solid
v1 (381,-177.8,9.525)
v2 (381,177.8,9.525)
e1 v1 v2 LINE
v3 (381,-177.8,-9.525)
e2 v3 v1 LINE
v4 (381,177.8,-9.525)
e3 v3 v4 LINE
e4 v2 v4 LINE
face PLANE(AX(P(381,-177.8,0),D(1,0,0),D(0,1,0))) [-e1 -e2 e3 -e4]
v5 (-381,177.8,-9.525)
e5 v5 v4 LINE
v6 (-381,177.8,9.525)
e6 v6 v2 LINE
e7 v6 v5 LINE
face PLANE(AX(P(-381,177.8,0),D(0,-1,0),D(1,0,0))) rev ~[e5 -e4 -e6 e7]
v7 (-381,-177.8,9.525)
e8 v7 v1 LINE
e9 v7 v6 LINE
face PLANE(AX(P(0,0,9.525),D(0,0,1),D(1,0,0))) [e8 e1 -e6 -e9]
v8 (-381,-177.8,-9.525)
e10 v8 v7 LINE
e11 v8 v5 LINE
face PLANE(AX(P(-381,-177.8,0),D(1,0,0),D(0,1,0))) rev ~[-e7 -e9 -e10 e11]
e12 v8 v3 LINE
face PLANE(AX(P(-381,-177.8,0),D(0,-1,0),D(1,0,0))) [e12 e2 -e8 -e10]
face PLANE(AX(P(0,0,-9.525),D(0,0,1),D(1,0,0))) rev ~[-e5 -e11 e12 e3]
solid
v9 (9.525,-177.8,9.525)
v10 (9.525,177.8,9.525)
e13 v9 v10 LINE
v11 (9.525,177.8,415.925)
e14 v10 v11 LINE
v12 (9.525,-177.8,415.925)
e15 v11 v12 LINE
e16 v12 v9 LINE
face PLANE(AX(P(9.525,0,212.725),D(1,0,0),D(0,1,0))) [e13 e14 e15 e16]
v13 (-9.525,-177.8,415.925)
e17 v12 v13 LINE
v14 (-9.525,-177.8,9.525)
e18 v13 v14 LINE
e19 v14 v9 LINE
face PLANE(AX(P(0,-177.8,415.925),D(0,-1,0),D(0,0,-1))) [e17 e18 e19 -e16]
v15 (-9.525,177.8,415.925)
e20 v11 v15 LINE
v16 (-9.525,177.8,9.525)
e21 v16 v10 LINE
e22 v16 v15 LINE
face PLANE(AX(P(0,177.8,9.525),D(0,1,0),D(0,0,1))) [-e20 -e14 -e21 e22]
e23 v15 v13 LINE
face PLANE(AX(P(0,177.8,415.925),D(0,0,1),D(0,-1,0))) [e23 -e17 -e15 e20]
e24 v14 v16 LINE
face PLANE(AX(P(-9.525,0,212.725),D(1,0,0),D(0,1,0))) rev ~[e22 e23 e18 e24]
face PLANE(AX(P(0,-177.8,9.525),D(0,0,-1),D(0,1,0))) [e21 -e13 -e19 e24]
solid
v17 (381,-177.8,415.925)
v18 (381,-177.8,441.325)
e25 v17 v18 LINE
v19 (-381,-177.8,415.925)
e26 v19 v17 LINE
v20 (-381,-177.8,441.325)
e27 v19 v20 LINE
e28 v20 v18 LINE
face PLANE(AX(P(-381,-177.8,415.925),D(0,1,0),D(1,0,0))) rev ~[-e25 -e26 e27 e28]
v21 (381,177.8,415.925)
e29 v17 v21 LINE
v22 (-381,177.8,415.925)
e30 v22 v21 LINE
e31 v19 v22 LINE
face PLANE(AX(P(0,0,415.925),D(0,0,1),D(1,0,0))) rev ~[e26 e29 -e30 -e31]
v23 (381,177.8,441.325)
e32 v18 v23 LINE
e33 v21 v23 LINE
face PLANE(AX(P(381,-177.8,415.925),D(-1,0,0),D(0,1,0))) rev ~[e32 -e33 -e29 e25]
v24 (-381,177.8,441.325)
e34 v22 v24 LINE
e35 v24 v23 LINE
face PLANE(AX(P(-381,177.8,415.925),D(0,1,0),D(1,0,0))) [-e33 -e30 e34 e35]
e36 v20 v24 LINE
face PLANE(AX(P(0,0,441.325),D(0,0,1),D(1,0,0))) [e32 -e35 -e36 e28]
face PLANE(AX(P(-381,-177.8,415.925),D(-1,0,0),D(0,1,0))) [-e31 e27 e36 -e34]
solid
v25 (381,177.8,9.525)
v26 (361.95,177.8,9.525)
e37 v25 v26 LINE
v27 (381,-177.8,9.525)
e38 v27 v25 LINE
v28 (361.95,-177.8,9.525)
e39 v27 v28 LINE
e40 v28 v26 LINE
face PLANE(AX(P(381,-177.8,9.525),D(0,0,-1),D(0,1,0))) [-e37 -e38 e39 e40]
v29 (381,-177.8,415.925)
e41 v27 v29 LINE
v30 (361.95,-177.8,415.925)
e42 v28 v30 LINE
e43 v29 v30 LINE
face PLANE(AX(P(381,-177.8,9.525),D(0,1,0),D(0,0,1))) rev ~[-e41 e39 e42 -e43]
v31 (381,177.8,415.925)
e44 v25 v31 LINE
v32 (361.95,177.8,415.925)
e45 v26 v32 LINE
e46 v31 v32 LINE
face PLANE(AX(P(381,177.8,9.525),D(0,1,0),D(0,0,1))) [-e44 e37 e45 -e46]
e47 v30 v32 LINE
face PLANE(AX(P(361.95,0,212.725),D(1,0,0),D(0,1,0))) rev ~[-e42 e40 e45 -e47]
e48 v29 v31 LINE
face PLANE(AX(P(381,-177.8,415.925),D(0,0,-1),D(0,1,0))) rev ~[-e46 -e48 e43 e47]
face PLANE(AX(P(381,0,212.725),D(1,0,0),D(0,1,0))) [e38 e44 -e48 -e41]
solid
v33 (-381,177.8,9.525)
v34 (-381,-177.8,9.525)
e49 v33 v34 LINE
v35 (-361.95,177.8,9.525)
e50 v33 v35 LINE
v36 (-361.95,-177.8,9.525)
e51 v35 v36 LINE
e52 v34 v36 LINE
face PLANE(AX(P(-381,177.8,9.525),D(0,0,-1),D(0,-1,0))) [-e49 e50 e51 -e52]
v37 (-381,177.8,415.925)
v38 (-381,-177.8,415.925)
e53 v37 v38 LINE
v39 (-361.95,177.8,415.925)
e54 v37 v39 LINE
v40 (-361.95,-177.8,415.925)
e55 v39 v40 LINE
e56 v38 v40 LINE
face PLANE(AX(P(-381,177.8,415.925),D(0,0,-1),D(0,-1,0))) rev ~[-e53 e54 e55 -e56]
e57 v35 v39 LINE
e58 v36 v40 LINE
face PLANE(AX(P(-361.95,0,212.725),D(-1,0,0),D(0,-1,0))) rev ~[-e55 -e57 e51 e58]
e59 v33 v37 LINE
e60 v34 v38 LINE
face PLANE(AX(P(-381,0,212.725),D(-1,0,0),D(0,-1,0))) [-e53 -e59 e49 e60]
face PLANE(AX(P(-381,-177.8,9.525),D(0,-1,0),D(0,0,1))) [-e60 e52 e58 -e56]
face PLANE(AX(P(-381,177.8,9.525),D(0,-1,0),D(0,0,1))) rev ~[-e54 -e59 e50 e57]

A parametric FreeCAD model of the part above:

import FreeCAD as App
import Part
import Sketcher
from FreeCAD import Vector
Q = App.Units.Quantity


def add_polygon(sketch, points):
    """Adds a closed chain of lines whose ends are joined by coincident constraints."""
    first, n = sketch.GeometryCount, len(points)
    for a, b in zip(points, points[1:] + points[:1]):
        sketch.addGeometry(Part.LineSegment(App.Vector(*a, 0), App.Vector(*b, 0)), False)
    for i in range(n):
        sketch.addConstraint(Sketcher.Constraint("Coincident", first + i, 2, first + (i + 1) % n, 1))

doc = App.newDocument("Part")
params = doc.addObject("Spreadsheet::Sheet", "Params")
for row, (alias, value) in enumerate([
    ("sketch1_width", "30 in"),
    ("sketch1_height", "14 in"),
    ("pad1_length", "0.75 in"),
    ("sketch2_width", "14 in"),
    ("sketch2_height", "16 in"),
    ("pad2_length", "0.75 in"),
    ("sketch3_width", "14 in"),
    ("sketch3_height", "16 in"),
    ("pad3_length", "0.75 in"),
    ("sketch4_width", "14 in"),
    ("sketch4_height", "16 in"),
    ("pad4_length", "0.75 in"),
    ("sketch5_width", "30 in"),
    ("sketch5_height", "14 in"),
    ("pad5_length", "1 in"),
], start=1):
    params.set(f"A{row}", alias)
    params.set(f"B{row}", "=" + value)
    params.setAlias(f"B{row}", alias)

body = doc.addObject("PartDesign::Body", "Body")

# Sketch on XY plane
sketch1 = body.newObject("Sketcher::SketchObject", "Sketch")
sketch1.AttachmentSupport = (doc.getObject("XY_Plane"), [""])
sketch1.MapMode = "FlatFace"
add_polygon(sketch1, [(-381, 177.8), (-381, -177.8), (381, -177.8), (381, 177.8)])  # lines 0-3
sketch1.addConstraint(Sketcher.Constraint("Vertical", 0))
sketch1.addConstraint(Sketcher.Constraint("Horizontal", 1))
sketch1.addConstraint(Sketcher.Constraint("Vertical", 2))
sketch1.addConstraint(Sketcher.Constraint("Horizontal", 3))
sketch1.addConstraint(Sketcher.Constraint("Symmetric", 0, 2, 2, 2, -1, 1))
sketch1.addConstraint(Sketcher.Constraint("DistanceX", 1, 1, 1, 2, Q("30 in")))
sketch1.addConstraint(Sketcher.Constraint("DistanceY", 0, 2, 0, 1, Q("14 in")))
sketch1.setExpression("Constraints[9]", "Params.sketch1_width")
sketch1.setExpression("Constraints[10]", "Params.sketch1_height")
pad1 = body.newObject("PartDesign::Pad", "Pad")
pad1.Profile = sketch1
pad1.setExpression("Length", "Params.pad1_length")
pad1.Midplane = True
body2 = doc.addObject("PartDesign::Body", "Body001")

# Sketch on YZ plane
sketch2 = body2.newObject("Sketcher::SketchObject", "Sketch001")
sketch2.AttachmentSupport = (doc.getObject("YZ_Plane001"), [""])
sketch2.MapMode = "FlatFace"
sketch2.AttachmentOffset = App.Placement(Vector(0, 0, 15 * 25.4), App.Rotation())
add_polygon(sketch2, [(-177.8, 415.925), (-177.8, 9.525), (177.8, 9.525), (177.8, 415.925)])  # lines 0-3
sketch2.addConstraint(Sketcher.Constraint("Vertical", 0))
sketch2.addConstraint(Sketcher.Constraint("Horizontal", 1))
sketch2.addConstraint(Sketcher.Constraint("Vertical", 2))
sketch2.addConstraint(Sketcher.Constraint("Horizontal", 3))
sketch2.addConstraint(Sketcher.Constraint("DistanceX", 1, 1, 1, 2, Q("14 in")))
sketch2.addConstraint(Sketcher.Constraint("DistanceY", 0, 2, 0, 1, Q("16 in")))
sketch2.addConstraint(Sketcher.Constraint("DistanceX", 0, 2, -1, 1, Q("7 in")))
sketch2.addConstraint(Sketcher.Constraint("DistanceY", -1, 1, 0, 2, Q("0.375 in")))
sketch2.setExpression("Constraints[8]", "Params.sketch2_width")
sketch2.setExpression("Constraints[9]", "Params.sketch2_height")
pad2 = body2.newObject("PartDesign::Pad", "Pad001")
pad2.Profile = sketch2
pad2.setExpression("Length", "Params.pad2_length")
pad2.Reversed = True
body3 = doc.addObject("PartDesign::Body", "Body002")

# Sketch on YZ plane
sketch3 = body3.newObject("Sketcher::SketchObject", "Sketch002")
sketch3.AttachmentSupport = (doc.getObject("YZ_Plane002"), [""])
sketch3.MapMode = "FlatFace"
add_polygon(sketch3, [(-177.8, 415.925), (-177.8, 9.525), (177.8, 9.525), (177.8, 415.925)])  # lines 0-3
sketch3.addConstraint(Sketcher.Constraint("Vertical", 0))
sketch3.addConstraint(Sketcher.Constraint("Horizontal", 1))
sketch3.addConstraint(Sketcher.Constraint("Vertical", 2))
sketch3.addConstraint(Sketcher.Constraint("Horizontal", 3))
sketch3.addConstraint(Sketcher.Constraint("DistanceX", 1, 1, 1, 2, Q("14 in")))
sketch3.addConstraint(Sketcher.Constraint("DistanceY", 0, 2, 0, 1, Q("16 in")))
sketch3.addConstraint(Sketcher.Constraint("DistanceX", 0, 2, -1, 1, Q("7 in")))
sketch3.addConstraint(Sketcher.Constraint("DistanceY", -1, 1, 0, 2, Q("0.375 in")))
sketch3.setExpression("Constraints[8]", "Params.sketch3_width")
sketch3.setExpression("Constraints[9]", "Params.sketch3_height")
pad3 = body3.newObject("PartDesign::Pad", "Pad002")
pad3.Profile = sketch3
pad3.setExpression("Length", "Params.pad3_length")
pad3.Midplane = True
body4 = doc.addObject("PartDesign::Body", "Body003")

# Sketch on YZ plane
sketch4 = body4.newObject("Sketcher::SketchObject", "Sketch003")
sketch4.AttachmentSupport = (doc.getObject("YZ_Plane003"), [""])
sketch4.MapMode = "FlatFace"
sketch4.AttachmentOffset = App.Placement(Vector(0, 0, -15 * 25.4), App.Rotation())
add_polygon(sketch4, [(177.8, 415.925), (177.8, 9.525), (-177.8, 9.525), (-177.8, 415.925)])  # lines 0-3
sketch4.addConstraint(Sketcher.Constraint("Vertical", 0))
sketch4.addConstraint(Sketcher.Constraint("Horizontal", 1))
sketch4.addConstraint(Sketcher.Constraint("Vertical", 2))
sketch4.addConstraint(Sketcher.Constraint("Horizontal", 3))
sketch4.addConstraint(Sketcher.Constraint("DistanceX", 1, 2, 1, 1, Q("14 in")))
sketch4.addConstraint(Sketcher.Constraint("DistanceY", 0, 2, 0, 1, Q("16 in")))
sketch4.addConstraint(Sketcher.Constraint("DistanceX", -1, 1, 0, 2, Q("7 in")))
sketch4.addConstraint(Sketcher.Constraint("DistanceY", -1, 1, 0, 2, Q("0.375 in")))
sketch4.setExpression("Constraints[8]", "Params.sketch4_width")
sketch4.setExpression("Constraints[9]", "Params.sketch4_height")
pad4 = body4.newObject("PartDesign::Pad", "Pad003")
pad4.Profile = sketch4
pad4.setExpression("Length", "Params.pad4_length")
body5 = doc.addObject("PartDesign::Body", "Body004")

# Sketch on XY plane
sketch5 = body5.newObject("Sketcher::SketchObject", "Sketch004")
sketch5.AttachmentSupport = (doc.getObject("XY_Plane004"), [""])
sketch5.MapMode = "FlatFace"
sketch5.AttachmentOffset = App.Placement(Vector(0, 0, 16.375 * 25.4), App.Rotation())
add_polygon(sketch5, [(-381, 177.8), (-381, -177.8), (381, -177.8), (381, 177.8)])  # lines 0-3
sketch5.addConstraint(Sketcher.Constraint("Vertical", 0))
sketch5.addConstraint(Sketcher.Constraint("Horizontal", 1))
sketch5.addConstraint(Sketcher.Constraint("Vertical", 2))
sketch5.addConstraint(Sketcher.Constraint("Horizontal", 3))
sketch5.addConstraint(Sketcher.Constraint("Symmetric", 0, 2, 2, 2, -1, 1))
sketch5.addConstraint(Sketcher.Constraint("DistanceX", 1, 1, 1, 2, Q("30 in")))
sketch5.addConstraint(Sketcher.Constraint("DistanceY", 0, 2, 0, 1, Q("14 in")))
sketch5.setExpression("Constraints[9]", "Params.sketch5_width")
sketch5.setExpression("Constraints[10]", "Params.sketch5_height")
pad5 = body5.newObject("PartDesign::Pad", "Pad004")
pad5.Profile = sketch5
pad5.setExpression("Length", "Params.pad5_length")

doc.recompute()
